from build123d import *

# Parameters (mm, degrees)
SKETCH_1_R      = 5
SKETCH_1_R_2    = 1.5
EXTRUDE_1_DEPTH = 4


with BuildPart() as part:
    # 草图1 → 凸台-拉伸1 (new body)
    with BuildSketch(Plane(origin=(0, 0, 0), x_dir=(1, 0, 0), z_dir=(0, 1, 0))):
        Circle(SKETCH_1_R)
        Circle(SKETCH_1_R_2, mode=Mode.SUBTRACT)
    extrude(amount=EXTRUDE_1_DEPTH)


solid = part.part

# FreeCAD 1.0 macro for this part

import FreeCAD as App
import Part
import Sketcher

doc = App.newDocument("Part")
body = doc.addObject("PartDesign::Body", "Body")

sketch1 = body.newObject("Sketcher::SketchObject", "Sketch")
sketch1.AttachmentSupport = (doc.getObject("XZ_Plane"), [""])
sketch1.MapMode = "FlatFace"
sketch1.addGeometry(Part.Circle(App.Vector(0, 0, 0), App.Vector(0, 0, 1), 5), False)
sketch1.addGeometry(Part.Circle(App.Vector(0, 0, 0), App.Vector(0, 0, 1), 1.5), False)
sketch1.addConstraint(Sketcher.Constraint("Coincident", 0, 3, -1, 1))
sketch1.addConstraint(Sketcher.Constraint("Coincident", 1, 3, -1, 1))
sketch1.addConstraint(Sketcher.Constraint("Diameter", 0, 10.0))
sketch1.addConstraint(Sketcher.Constraint("Diameter", 1, 3.0))
pad1 = body.newObject("PartDesign::Pad", "Pad")
pad1.Profile = sketch1
pad1.Length = 4
pad1.Reversed = True

doc.recompute()
